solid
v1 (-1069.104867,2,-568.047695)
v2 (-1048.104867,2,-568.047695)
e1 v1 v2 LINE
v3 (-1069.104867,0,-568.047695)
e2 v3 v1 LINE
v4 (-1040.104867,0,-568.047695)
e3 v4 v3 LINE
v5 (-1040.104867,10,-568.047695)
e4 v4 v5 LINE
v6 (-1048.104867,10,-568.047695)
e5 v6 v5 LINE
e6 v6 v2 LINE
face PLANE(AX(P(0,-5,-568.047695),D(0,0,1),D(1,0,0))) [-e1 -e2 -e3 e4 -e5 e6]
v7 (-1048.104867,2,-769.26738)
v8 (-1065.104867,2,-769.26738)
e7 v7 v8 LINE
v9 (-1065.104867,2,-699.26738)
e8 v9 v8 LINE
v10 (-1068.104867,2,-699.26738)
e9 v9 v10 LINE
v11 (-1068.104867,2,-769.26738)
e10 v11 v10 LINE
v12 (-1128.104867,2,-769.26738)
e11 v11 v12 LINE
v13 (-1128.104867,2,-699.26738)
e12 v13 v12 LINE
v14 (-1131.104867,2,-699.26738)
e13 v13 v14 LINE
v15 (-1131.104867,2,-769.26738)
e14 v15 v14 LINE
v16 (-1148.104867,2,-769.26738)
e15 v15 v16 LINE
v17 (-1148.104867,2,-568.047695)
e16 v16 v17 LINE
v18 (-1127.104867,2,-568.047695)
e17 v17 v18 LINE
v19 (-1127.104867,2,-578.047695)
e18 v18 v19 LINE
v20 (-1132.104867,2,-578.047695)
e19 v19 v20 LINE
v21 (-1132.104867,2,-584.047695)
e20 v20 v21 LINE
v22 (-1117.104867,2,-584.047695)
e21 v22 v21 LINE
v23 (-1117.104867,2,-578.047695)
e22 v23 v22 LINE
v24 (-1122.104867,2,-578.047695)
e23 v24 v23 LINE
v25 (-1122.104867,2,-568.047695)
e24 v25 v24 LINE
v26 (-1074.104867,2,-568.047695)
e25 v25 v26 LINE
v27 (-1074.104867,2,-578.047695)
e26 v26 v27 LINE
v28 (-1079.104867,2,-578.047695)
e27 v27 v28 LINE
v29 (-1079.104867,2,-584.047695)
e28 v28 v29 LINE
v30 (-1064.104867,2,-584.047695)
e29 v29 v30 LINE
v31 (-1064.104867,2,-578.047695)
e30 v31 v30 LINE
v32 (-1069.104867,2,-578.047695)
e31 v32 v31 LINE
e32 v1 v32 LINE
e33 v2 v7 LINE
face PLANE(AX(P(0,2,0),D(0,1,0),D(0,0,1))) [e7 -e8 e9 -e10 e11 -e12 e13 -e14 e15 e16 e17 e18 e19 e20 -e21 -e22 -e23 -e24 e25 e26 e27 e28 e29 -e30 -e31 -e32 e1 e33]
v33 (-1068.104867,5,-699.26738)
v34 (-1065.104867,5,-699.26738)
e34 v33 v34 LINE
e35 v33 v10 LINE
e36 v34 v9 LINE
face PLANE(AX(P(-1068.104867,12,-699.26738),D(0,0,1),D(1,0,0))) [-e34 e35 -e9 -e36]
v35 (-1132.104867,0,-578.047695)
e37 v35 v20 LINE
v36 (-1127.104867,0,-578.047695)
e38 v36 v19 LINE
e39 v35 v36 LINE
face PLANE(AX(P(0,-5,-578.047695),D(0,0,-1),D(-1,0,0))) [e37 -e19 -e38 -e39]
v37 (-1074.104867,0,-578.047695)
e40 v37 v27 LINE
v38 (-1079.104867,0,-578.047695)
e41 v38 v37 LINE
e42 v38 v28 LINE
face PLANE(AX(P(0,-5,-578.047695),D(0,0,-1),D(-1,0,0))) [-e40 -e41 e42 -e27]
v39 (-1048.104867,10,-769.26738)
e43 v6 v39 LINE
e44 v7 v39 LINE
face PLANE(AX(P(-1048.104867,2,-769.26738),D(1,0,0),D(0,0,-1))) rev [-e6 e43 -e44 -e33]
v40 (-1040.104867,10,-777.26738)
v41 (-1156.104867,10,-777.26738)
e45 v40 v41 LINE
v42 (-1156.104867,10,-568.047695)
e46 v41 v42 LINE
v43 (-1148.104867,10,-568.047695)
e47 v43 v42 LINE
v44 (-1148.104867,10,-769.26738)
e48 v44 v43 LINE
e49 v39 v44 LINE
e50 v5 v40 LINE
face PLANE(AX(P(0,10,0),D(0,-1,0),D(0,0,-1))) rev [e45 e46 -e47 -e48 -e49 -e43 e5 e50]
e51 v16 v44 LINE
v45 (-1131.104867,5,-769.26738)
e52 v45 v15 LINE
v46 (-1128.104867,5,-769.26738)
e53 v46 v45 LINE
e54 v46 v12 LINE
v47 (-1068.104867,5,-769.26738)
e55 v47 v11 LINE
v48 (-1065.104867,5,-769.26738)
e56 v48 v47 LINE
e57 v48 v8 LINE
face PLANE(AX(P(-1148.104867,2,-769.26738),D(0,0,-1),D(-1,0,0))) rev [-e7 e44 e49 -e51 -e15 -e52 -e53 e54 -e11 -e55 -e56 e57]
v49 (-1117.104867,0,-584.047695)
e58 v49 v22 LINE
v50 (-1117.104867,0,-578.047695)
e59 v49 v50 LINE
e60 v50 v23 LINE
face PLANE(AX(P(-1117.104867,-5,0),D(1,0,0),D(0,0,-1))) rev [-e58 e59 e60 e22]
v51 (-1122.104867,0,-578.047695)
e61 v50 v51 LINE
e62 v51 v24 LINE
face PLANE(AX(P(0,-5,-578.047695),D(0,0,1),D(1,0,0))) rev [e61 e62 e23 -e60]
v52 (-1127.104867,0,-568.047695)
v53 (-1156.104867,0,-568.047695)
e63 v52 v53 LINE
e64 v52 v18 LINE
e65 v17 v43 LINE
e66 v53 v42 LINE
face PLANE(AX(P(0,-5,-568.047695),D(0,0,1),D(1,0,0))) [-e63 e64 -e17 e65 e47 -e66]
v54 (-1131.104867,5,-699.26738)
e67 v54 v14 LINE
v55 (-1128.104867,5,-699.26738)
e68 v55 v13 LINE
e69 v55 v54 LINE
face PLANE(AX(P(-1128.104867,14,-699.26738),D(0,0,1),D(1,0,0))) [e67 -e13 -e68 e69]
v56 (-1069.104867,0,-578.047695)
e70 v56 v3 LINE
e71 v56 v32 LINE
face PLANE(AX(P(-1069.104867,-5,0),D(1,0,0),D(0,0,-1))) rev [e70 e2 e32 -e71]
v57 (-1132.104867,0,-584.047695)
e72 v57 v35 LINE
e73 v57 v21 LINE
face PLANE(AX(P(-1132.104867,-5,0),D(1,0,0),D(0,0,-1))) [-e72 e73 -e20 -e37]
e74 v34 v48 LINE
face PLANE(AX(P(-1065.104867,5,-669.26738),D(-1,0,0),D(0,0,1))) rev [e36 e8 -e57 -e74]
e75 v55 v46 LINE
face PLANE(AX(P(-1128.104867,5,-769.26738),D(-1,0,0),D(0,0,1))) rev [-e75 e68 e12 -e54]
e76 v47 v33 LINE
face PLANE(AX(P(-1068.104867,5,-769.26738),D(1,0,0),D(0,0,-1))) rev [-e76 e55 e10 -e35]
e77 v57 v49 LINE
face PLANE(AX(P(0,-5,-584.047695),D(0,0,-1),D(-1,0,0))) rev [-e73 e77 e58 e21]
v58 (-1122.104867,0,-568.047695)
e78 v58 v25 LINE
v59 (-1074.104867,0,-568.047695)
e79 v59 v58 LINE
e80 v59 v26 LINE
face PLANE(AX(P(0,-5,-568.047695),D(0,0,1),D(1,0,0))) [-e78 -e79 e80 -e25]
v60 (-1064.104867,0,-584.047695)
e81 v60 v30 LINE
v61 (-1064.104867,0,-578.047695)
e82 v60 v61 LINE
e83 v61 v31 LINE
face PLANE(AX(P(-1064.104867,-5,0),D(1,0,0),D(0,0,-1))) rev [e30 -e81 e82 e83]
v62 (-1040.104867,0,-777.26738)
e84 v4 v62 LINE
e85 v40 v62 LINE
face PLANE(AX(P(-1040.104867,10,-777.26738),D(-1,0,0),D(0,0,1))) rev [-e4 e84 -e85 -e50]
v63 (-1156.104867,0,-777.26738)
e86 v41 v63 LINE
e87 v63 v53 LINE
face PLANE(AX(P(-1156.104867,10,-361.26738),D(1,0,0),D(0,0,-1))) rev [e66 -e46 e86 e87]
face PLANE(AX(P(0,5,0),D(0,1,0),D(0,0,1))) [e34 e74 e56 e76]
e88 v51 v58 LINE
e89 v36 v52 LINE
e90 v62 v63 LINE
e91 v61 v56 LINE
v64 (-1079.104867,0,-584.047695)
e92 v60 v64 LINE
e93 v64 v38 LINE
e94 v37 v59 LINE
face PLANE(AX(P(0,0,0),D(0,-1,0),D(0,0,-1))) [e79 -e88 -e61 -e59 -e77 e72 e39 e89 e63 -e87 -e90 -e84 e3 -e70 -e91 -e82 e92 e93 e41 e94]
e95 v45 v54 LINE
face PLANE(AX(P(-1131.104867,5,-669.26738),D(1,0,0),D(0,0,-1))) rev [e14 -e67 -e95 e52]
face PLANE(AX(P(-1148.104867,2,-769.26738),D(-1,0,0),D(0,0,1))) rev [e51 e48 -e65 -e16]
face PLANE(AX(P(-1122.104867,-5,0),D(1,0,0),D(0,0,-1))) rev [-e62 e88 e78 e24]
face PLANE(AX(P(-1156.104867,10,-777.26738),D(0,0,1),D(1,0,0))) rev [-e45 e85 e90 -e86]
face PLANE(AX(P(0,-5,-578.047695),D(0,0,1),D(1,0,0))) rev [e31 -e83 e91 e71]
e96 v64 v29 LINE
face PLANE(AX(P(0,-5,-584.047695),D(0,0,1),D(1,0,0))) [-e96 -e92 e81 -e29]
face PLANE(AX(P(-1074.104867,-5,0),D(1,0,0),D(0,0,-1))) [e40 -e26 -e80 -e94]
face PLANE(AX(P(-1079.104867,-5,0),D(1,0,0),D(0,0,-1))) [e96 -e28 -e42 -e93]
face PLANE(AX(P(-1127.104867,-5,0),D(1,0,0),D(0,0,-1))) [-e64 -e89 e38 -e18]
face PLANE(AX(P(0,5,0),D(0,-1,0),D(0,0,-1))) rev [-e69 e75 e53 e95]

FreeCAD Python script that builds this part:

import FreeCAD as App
import Part
import Sketcher

V = App.Vector
Q = App.Units.Quantity


def add_polygon(sketch, points):
    """Adds a closed chain of lines whose ends are joined by coincident constraints."""
    first, n = sketch.GeometryCount, len(points)
    for a, b in zip(points, points[1:] + points[:1]):
        sketch.addGeometry(Part.LineSegment(App.Vector(*a, 0), App.Vector(*b, 0)), False)
    for i in range(n):
        sketch.addConstraint(Sketcher.Constraint("Coincident", first + i, 2, first + (i + 1) % n, 1))

doc = App.newDocument("Part")
body = doc.addObject("PartDesign::Body", "Body")

# Sketch on XZ plane
sketch1 = body.newObject("Sketcher::SketchObject", "Sketch")
sketch1.AttachmentSupport = (doc.getObject("XZ_Plane"), [""])
sketch1.MapMode = "FlatFace"
add_polygon(sketch1, [(-1156.104867, -777.26738), (-1156.104867, -361.26738), (-1040.104867, -361.26738), (-1040.104867, -777.26738)])  # lines 0-3
sketch1.addConstraint([
    Sketcher.Constraint("Vertical", 0),
    Sketcher.Constraint("Horizontal", 1),
    Sketcher.Constraint("Vertical", 2),
    Sketcher.Constraint("Horizontal", 3),
    Sketcher.Constraint("DistanceX", 1, 1, 1, 2, Q("116 mm")),
    Sketcher.Constraint("DistanceY", 0, 1, 0, 2, Q("416 mm")),
    Sketcher.Constraint("DistanceY", 0, 2, -1, 1, Q("361.26738 mm")),
    Sketcher.Constraint("DistanceX", 0, 2, -1, 1, Q("1156.104867 mm")),
])
pad1 = body.newObject("PartDesign::Pad", "Pad")
pad1.Profile = sketch1
pad1.Length = 10
pad1.Reversed = True

# Sketch on XZ plane
sketch2 = body.newObject("Sketcher::SketchObject", "Sketch001")
sketch2.AttachmentSupport = (doc.getObject("XZ_Plane"), [""])
sketch2.MapMode = "FlatFace"
sketch2.AttachmentOffset = App.Placement(V(0, 0, -10), App.Rotation())
add_polygon(sketch2, [(-1148.104867, -769.26738), (-1148.104867, -369.26738), (-1048.104867, -369.26738), (-1048.104867, -769.26738)])  # lines 0-3
sketch2.addConstraint([
    Sketcher.Constraint("Vertical", 0),
    Sketcher.Constraint("Horizontal", 1),
    Sketcher.Constraint("Vertical", 2),
    Sketcher.Constraint("Horizontal", 3),
    Sketcher.Constraint("DistanceX", 1, 1, 1, 2, Q("100 mm")),
    Sketcher.Constraint("DistanceY", 0, 1, 0, 2, Q("400 mm")),
    Sketcher.Constraint("DistanceY", 0, 2, -1, 1, Q("369.26738 mm")),
    Sketcher.Constraint("DistanceX", 0, 2, -1, 1, Q("1148.104867 mm")),
])
pocket1 = body.newObject("PartDesign::Pocket", "Pocket")
pocket1.Profile = sketch2
pocket1.Length = 8
pocket1.Reversed = True

# Sketch on XZ plane
sketch3 = body.newObject("Sketcher::SketchObject", "Sketch002")
sketch3.AttachmentSupport = (doc.getObject("XZ_Plane"), [""])
sketch3.MapMode = "FlatFace"
sketch3.AttachmentOffset = App.Placement(V(0, 0, -2), App.Rotation())
add_polygon(sketch3, [(-1131.104867, -769.26738), (-1131.104867, -669.26738), (-1128.104867, -669.26738), (-1128.104867, -769.26738)])  # lines 0-3
add_polygon(sketch3, [(-1068.104867, -769.26738), (-1068.104867, -669.26738), (-1065.104867, -669.26738), (-1065.104867, -769.26738)])  # lines 4-7
sketch3.addConstraint([
    Sketcher.Constraint("Vertical", 0),
    Sketcher.Constraint("Horizontal", 1),
    Sketcher.Constraint("Vertical", 2),
    Sketcher.Constraint("Horizontal", 3),
    Sketcher.Constraint("Vertical", 4),
    Sketcher.Constraint("Horizontal", 5),
    Sketcher.Constraint("Vertical", 6),
    Sketcher.Constraint("Horizontal", 7),
    Sketcher.Constraint("Horizontal", 1, 2, 4, 2),
    Sketcher.Constraint("Horizontal", 3, 2, 6, 2),
    Sketcher.Constraint("Equal", 3, 5),
    Sketcher.Constraint("DistanceX", 1, 1, 1, 2, Q("3 mm")),
    Sketcher.Constraint("DistanceY", 0, 1, 0, 2, Q("100 mm")),
    Sketcher.Constraint("DistanceX", 1, 2, 4, 2, Q("60 mm")),
    Sketcher.Constraint("DistanceY", 0, 2, -1, 1, Q("669.26738 mm")),
    Sketcher.Constraint("DistanceX", 0, 2, -1, 1, Q("1131.104867 mm")),
])
pad2 = body.newObject("PartDesign::Pad", "Pad001")
pad2.Profile = sketch3
pad2.Length = 3
pad2.Reversed = True

# Sketch on XZ plane
sketch4 = body.newObject("Sketcher::SketchObject", "Sketch003")
sketch4.AttachmentSupport = (doc.getObject("XZ_Plane"), [""])
sketch4.MapMode = "FlatFace"
sketch4.AttachmentOffset = App.Placement(V(0, 0, -2), App.Rotation())
sketch4.addGeometry(Part.Circle(V(-1085.404867, -452.168272, 0), V(0, 0, 1), 1.5), False)
sketch4.addConstraint([
    Sketcher.Constraint("Diameter", 0, Q("3 mm")),
    Sketcher.Constraint("DistanceY", 0, 3, -1, 1, Q("452.168272 mm")),
    Sketcher.Constraint("DistanceX", 0, 3, -1, 1, Q("1085.404867 mm")),
])
pad3 = body.newObject("PartDesign::Pad", "Pad002")
pad3.Profile = sketch4
pad3.Length = 3
pad3.Reversed = True

# Sketch on XZ plane
sketch5 = body.newObject("Sketcher::SketchObject", "Sketch004")
sketch5.AttachmentSupport = (doc.getObject("XZ_Plane"), [""])
sketch5.MapMode = "FlatFace"
sketch5.AttachmentOffset = App.Placement(V(0, 0, -2), App.Rotation())
add_polygon(sketch5, [(-1156.104867, -538.047695), (-1156.104867, -361.26738), (-1040.104867, -361.26738), (-1040.104867, -538.047695)])  # lines 0-3
sketch5.addConstraint([
    Sketcher.Constraint("Vertical", 0),
    Sketcher.Constraint("Horizontal", 1),
    Sketcher.Constraint("Vertical", 2),
    Sketcher.Constraint("Horizontal", 3),
    Sketcher.Constraint("DistanceX", 1, 1, 1, 2, Q("116 mm")),
    Sketcher.Constraint("DistanceY", 0, 1, 0, 2, Q("176.780316 mm")),
    Sketcher.Constraint("DistanceY", 0, 2, -1, 1, Q("361.26738 mm")),
    Sketcher.Constraint("DistanceX", 0, 2, -1, 1, Q("1156.104867 mm")),
])
pocket2 = body.newObject("PartDesign::Pocket", "Pocket001")
pocket2.Profile = sketch5
pocket2.Type = "ThroughAll"
pocket2.Midplane = True

# Sketch on XZ plane
sketch6 = body.newObject("Sketcher::SketchObject", "Sketch005")
sketch6.AttachmentSupport = (doc.getObject("XZ_Plane"), [""])
sketch6.MapMode = "FlatFace"
sketch6.AttachmentOffset = App.Placement(V(0, 0, -2), App.Rotation())
add_polygon(sketch6, [(-1127.104867, -548.047695), (-1127.104867, -538.047695), (-1122.104867, -538.047695), (-1122.104867, -548.047695), (-1117.104867, -548.047695), (-1117.104867, -554.047695), (-1132.104867, -554.047695), (-1132.104867, -548.047695)])  # lines 0-7
add_polygon(sketch6, [(-1074.104867, -548.047695), (-1074.104867, -538.047695), (-1069.104867, -538.047695), (-1069.104867, -548.047695), (-1064.104867, -548.047695), (-1064.104867, -554.047695), (-1079.104867, -554.047695), (-1079.104867, -548.047695)])  # lines 8-15
sketch6.addConstraint([
    Sketcher.Constraint("Vertical", 0),
    Sketcher.Constraint("Horizontal", 1),
    Sketcher.Constraint("Vertical", 2),
    Sketcher.Constraint("Horizontal", 3),
    Sketcher.Constraint("Vertical", 4),
    Sketcher.Constraint("Horizontal", 5),
    Sketcher.Constraint("Vertical", 6),
    Sketcher.Constraint("Horizontal", 7),
    Sketcher.Constraint("Vertical", 8),
    Sketcher.Constraint("Horizontal", 9),
    Sketcher.Constraint("Vertical", 10),
    Sketcher.Constraint("Horizontal", 11),
    Sketcher.Constraint("Vertical", 12),
    Sketcher.Constraint("Horizontal", 13),
    Sketcher.Constraint("Vertical", 14),
    Sketcher.Constraint("Horizontal", 15),
    Sketcher.Constraint("Horizontal", 3, 2, 6, 2),
    Sketcher.Constraint("Horizontal", 1, 2, 8, 2),
    Sketcher.Constraint("Horizontal", 7, 2, 10, 2),
    Sketcher.Constraint("Horizontal", 5, 2, 12, 2),
    Sketcher.Constraint("Horizontal", 11, 2, 14, 2),
    Sketcher.Constraint("Equal", 1, 3),
    Sketcher.Constraint("Equal", 3, 7),
    Sketcher.Constraint("Equal", 7, 9),
    Sketcher.Constraint("Equal", 9, 11),
    Sketcher.Constraint("Equal", 5, 13),
    Sketcher.Constraint("DistanceX", 1, 1, 1, 2, Q("5 mm")),
    Sketcher.Constraint("DistanceY", 0, 1, 0, 2, Q("10 mm")),
    Sketcher.Constraint("DistanceY", 4, 2, 4, 1, Q("6 mm")),
    Sketcher.Constraint("DistanceX", 3, 2, 8, 2, Q("43 mm")),
    Sketcher.Constraint("DistanceX", 0, 2, -1, 1, Q("1127.104867 mm")),
    Sketcher.Constraint("DistanceY", 0, 2, -1, 1, Q("538.047695 mm")),
])
pocket3 = body.newObject("PartDesign::Pocket", "Pocket002")
pocket3.Profile = sketch6
pocket3.Length = 37
pocket3.Reversed = True

# Sketch on XZ plane
sketch7 = body.newObject("Sketcher::SketchObject", "Sketch006")
sketch7.AttachmentSupport = (doc.getObject("XZ_Plane"), [""])
sketch7.MapMode = "FlatFace"
sketch7.AttachmentOffset = App.Placement(V(0, 0, -5), App.Rotation())
add_polygon(sketch7, [(-1127.104867, -578.047695), (-1127.104867, -568.047695), (-1156.104867, -568.047695), (-1156.104867, -538.047695), (-1040.104867, -538.047695), (-1040.104867, -568.047695), (-1069.104867, -568.047695), (-1069.104867, -578.047695), (-1064.104867, -578.047695), (-1064.104867, -584.047695), (-1079.104867, -584.047695), (-1079.104867, -578.047695), (-1074.104867, -578.047695), (-1074.104867, -568.047695), (-1122.104867, -568.047695), (-1122.104867, -578.047695), (-1117.104867, -578.047695), (-1117.104867, -584.047695), (-1132.104867, -584.047695), (-1132.104867, -578.047695)])  # lines 0-19
sketch7.addConstraint([
    Sketcher.Constraint("Vertical", 0),
    Sketcher.Constraint("Horizontal", 1),
    Sketcher.Constraint("Vertical", 2),
    Sketcher.Constraint("Horizontal", 3),
    Sketcher.Constraint("Vertical", 4),
    Sketcher.Constraint("Horizontal", 5),
    Sketcher.Constraint("Vertical", 6),
    Sketcher.Constraint("Horizontal", 7),
    Sketcher.Constraint("Vertical", 8),
    Sketcher.Constraint("Horizontal", 9),
    Sketcher.Constraint("Vertical", 10),
    Sketcher.Constraint("Horizontal", 11),
    Sketcher.Constraint("Vertical", 12),
    Sketcher.Constraint("Horizontal", 13),
    Sketcher.Constraint("Vertical", 14),
    Sketcher.Constraint("Horizontal", 15),
    Sketcher.Constraint("Vertical", 16),
    Sketcher.Constraint("Horizontal", 17),
    Sketcher.Constraint("Vertical", 18),
    Sketcher.Constraint("Horizontal", 19),
    Sketcher.Constraint("Horizontal", 1, 2, 4, 2),
    Sketcher.Constraint("Horizontal", 7, 2, 10, 2),
    Sketcher.Constraint("Horizontal", 5, 2, 12, 2),
    Sketcher.Constraint("Horizontal", 11, 2, 14, 2),
    Sketcher.Constraint("Horizontal", 9, 2, 16, 2),
    Sketcher.Constraint("Horizontal", 15, 2, 18, 2),
    Sketcher.Constraint("Equal", 1, 5),
    Sketcher.Constraint("Equal", 7, 11),
    Sketcher.Constraint("Equal", 11, 15),
    Sketcher.Constraint("Equal", 9, 17),
    Sketcher.Constraint("Equal", 15, 19),
    Sketcher.Constraint("DistanceX", 1, 2, 1, 1, Q("29 mm")),
    Sketcher.Constraint("DistanceX", 3, 1, 3, 2, Q("116 mm")),
    Sketcher.Constraint("DistanceX", 7, 1, 7, 2, Q("5 mm")),
    Sketcher.Constraint("DistanceX", 9, 2, 9, 1, Q("15 mm")),
    Sketcher.Constraint("DistanceY", 0, 1, 0, 2, Q("10 mm")),
    Sketcher.Constraint("DistanceY", 2, 1, 2, 2, Q("30 mm")),
    Sketcher.Constraint("DistanceY", 8, 2, 8, 1, Q("6 mm")),
    Sketcher.Constraint("DistanceX", 0, 2, -1, 1, Q("1127.104867 mm")),
    Sketcher.Constraint("DistanceY", 0, 2, -1, 1, Q("568.047695 mm")),
])
pocket4 = body.newObject("PartDesign::Pocket", "Pocket003")
pocket4.Profile = sketch7
pocket4.Length = 10
pocket4.Reversed = True

# Sketch on XZ plane
sketch8 = body.newObject("Sketcher::SketchObject", "Sketch007")
sketch8.AttachmentSupport = (doc.getObject("XZ_Plane"), [""])
sketch8.MapMode = "FlatFace"
add_polygon(sketch8, [(-1156.104867, -568.047695), (-1156.104867, -538.047695), (-1148.104867, -538.047695), (-1148.104867, -568.047695)])  # lines 0-3
add_polygon(sketch8, [(-1048.104867, -568.047695), (-1048.104867, -538.047695), (-1040.104867, -538.047695), (-1040.104867, -568.047695)])  # lines 4-7
sketch8.addConstraint([
    Sketcher.Constraint("Vertical", 0),
    Sketcher.Constraint("Horizontal", 1),
    Sketcher.Constraint("Vertical", 2),
    Sketcher.Constraint("Horizontal", 3),
    Sketcher.Constraint("Vertical", 4),
    Sketcher.Constraint("Horizontal", 5),
    Sketcher.Constraint("Vertical", 6),
    Sketcher.Constraint("Horizontal", 7),
    Sketcher.Constraint("Horizontal", 1, 2, 4, 2),
    Sketcher.Constraint("Horizontal", 3, 2, 6, 2),
    Sketcher.Constraint("Equal", 3, 5),
    Sketcher.Constraint("DistanceX", 1, 1, 1, 2, Q("8 mm")),
    Sketcher.Constraint("DistanceY", 0, 1, 0, 2, Q("30 mm")),
    Sketcher.Constraint("DistanceX", 1, 2, 4, 2, Q("100 mm")),
    Sketcher.Constraint("DistanceX", 0, 2, -1, 1, Q("1156.104867 mm")),
    Sketcher.Constraint("DistanceY", 0, 2, -1, 1, Q("538.047695 mm")),
])
pocket5 = body.newObject("PartDesign::Pocket", "Pocket004")
pocket5.Profile = sketch8
pocket5.Length = 10

# Sketch on XZ plane
sketch9 = body.newObject("Sketcher::SketchObject", "Sketch008")
sketch9.AttachmentSupport = (doc.getObject("XZ_Plane"), [""])
sketch9.MapMode = "FlatFace"
sketch9.AttachmentOffset = App.Placement(V(0, 0, -2), App.Rotation())
add_polygon(sketch9, [(-1068.104867, -699.26738), (-1068.104867, -669.26738), (-1065.104867, -669.26738), (-1065.104867, -699.26738)])  # lines 0-3
sketch9.addConstraint([
    Sketcher.Constraint("Vertical", 0),
    Sketcher.Constraint("Horizontal", 1),
    Sketcher.Constraint("Vertical", 2),
    Sketcher.Constraint("Horizontal", 3),
    Sketcher.Constraint("DistanceX", 1, 1, 1, 2, Q("3 mm")),
    Sketcher.Constraint("DistanceY", 0, 1, 0, 2, Q("30 mm")),
    Sketcher.Constraint("DistanceY", 0, 2, -1, 1, Q("669.26738 mm")),
    Sketcher.Constraint("DistanceX", 0, 2, -1, 1, Q("1068.104867 mm")),
])
pocket6 = body.newObject("PartDesign::Pocket", "Pocket005")
pocket6.Profile = sketch9
pocket6.Length = 10

# Sketch on XZ plane
sketch10 = body.newObject("Sketcher::SketchObject", "Sketch009")
sketch10.AttachmentSupport = (doc.getObject("XZ_Plane"), [""])
sketch10.MapMode = "FlatFace"
add_polygon(sketch10, [(-1131.104867, -699.26738), (-1131.104867, -669.26738), (-1128.104867, -669.26738), (-1128.104867, -699.26738)])  # lines 0-3
sketch10.addConstraint([
    Sketcher.Constraint("Vertical", 0),
    Sketcher.Constraint("Horizontal", 1),
    Sketcher.Constraint("Vertical", 2),
    Sketcher.Constraint("Horizontal", 3),
    Sketcher.Constraint("DistanceX", 1, 1, 1, 2, Q("3 mm")),
    Sketcher.Constraint("DistanceY", 0, 1, 0, 2, Q("30 mm")),
    Sketcher.Constraint("DistanceY", 0, 2, -1, 1, Q("669.26738 mm")),
    Sketcher.Constraint("DistanceX", 0, 2, -1, 1, Q("1131.104867 mm")),
])
pocket7 = body.newObject("PartDesign::Pocket", "Pocket006")
pocket7.Profile = sketch10
pocket7.Length = 14

# Sketch on XZ plane
sketch11 = body.newObject("Sketcher::SketchObject", "Sketch010")
sketch11.AttachmentSupport = (doc.getObject("XZ_Plane"), [""])
sketch11.MapMode = "FlatFace"
add_polygon(sketch11, [(-1131.104867, -699.26738), (-1131.104867, -669.26738), (-1128.104867, -669.26738), (-1128.104867, -699.26738)])  # lines 0-3
sketch11.addConstraint([
    Sketcher.Constraint("Vertical", 0),
    Sketcher.Constraint("Horizontal", 1),
    Sketcher.Constraint("Vertical", 2),
    Sketcher.Constraint("Horizontal", 3),
    Sketcher.Constraint("DistanceX", 1, 1, 1, 2, Q("3 mm")),
    Sketcher.Constraint("DistanceY", 0, 1, 0, 2, Q("30 mm")),
    Sketcher.Constraint("DistanceY", 0, 2, -1, 1, Q("669.26738 mm")),
    Sketcher.Constraint("DistanceX", 0, 2, -1, 1, Q("1131.104867 mm")),
])
pad4 = body.newObject("PartDesign::Pad", "Pad003")
pad4.Profile = sketch11
pad4.Length = 2
pad4.Reversed = True

doc.recompute()
